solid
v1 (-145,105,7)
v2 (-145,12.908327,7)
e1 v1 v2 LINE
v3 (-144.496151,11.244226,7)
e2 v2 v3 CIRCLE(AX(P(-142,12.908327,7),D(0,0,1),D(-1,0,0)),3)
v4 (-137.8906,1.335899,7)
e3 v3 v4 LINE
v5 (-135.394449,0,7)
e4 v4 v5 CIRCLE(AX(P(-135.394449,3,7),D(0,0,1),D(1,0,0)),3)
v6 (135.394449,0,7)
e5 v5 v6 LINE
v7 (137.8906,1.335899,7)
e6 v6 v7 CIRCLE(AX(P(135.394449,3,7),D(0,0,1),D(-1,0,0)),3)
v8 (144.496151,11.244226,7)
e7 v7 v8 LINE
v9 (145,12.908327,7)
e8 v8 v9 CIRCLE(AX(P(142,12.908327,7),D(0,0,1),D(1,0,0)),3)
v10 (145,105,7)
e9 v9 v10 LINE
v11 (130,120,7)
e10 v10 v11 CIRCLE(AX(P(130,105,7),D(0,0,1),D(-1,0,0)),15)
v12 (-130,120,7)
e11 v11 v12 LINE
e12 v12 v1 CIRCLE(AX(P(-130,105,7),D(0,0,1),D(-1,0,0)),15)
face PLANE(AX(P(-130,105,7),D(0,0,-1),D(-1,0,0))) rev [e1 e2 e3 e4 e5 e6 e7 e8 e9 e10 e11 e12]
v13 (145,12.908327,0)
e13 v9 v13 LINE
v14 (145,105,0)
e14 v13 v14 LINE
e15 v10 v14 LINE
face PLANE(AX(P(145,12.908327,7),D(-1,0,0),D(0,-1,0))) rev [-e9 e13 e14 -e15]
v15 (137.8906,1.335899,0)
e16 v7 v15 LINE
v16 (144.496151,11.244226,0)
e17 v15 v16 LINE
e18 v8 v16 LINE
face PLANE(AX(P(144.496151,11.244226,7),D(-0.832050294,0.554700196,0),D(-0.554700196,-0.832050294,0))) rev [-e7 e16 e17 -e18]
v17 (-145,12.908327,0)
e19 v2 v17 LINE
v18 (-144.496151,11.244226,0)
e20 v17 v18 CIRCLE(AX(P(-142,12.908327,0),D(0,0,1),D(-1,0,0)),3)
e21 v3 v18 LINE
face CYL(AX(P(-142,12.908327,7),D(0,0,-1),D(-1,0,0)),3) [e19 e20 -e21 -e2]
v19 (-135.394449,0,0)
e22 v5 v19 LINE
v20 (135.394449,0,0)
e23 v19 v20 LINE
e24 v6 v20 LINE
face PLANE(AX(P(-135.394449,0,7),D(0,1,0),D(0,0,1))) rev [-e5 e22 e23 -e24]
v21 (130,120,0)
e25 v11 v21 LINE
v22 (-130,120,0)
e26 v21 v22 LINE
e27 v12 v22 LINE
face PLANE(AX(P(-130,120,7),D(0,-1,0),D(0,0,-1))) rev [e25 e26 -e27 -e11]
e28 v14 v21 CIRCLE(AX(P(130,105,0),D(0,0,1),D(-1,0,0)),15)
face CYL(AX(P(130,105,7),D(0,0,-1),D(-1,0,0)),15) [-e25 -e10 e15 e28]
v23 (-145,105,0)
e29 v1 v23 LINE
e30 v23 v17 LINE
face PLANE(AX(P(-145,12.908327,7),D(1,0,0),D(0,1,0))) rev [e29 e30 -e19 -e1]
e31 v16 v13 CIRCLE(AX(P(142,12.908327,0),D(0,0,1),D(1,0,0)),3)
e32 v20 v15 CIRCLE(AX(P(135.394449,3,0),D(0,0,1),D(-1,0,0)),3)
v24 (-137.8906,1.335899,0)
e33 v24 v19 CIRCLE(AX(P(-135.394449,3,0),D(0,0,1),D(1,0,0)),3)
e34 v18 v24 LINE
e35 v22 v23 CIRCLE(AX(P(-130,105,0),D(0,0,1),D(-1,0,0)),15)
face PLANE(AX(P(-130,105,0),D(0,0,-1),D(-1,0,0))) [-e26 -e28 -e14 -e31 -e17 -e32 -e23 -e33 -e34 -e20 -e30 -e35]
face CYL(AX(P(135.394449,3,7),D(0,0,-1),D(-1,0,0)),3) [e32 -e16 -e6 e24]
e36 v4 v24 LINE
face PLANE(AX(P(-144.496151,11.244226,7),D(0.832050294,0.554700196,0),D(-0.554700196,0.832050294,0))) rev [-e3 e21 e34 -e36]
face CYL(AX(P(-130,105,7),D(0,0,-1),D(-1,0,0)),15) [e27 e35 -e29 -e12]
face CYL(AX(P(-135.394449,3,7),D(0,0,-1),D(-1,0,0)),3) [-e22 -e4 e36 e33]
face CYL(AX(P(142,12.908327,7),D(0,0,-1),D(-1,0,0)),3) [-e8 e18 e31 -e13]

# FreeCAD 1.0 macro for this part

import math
import FreeCAD as App
import Part
import Sketcher
Q = App.Units.Quantity

doc = App.newDocument("Part")
body = doc.addObject("PartDesign::Body", "Body")

# Sketch on XY plane
sketch1 = body.newObject("Sketcher::SketchObject", "Sketch")
sketch1.AttachmentSupport = (doc.getObject("XY_Plane"), [""])
sketch1.MapMode = "FlatFace"
sketch1.addGeometry([
    Part.LineSegment(App.Vector(-144.5, 11.2, 0), App.Vector(-137.9, 1.3, 0)),  # 0
    Part.ArcOfCircle(Part.Circle(App.Vector(-135.4, 3, 0), App.Vector(0, 0, 1), 3), math.radians(-146), math.radians(-90)),  # 1
    Part.LineSegment(App.Vector(-135.4, 0, 0), App.Vector(135.4, 0, 0)),  # 2
    Part.ArcOfCircle(Part.Circle(App.Vector(135.4, 3, 0), App.Vector(0, 0, 1), 3), math.radians(-90), math.radians(-34)),  # 3
    Part.LineSegment(App.Vector(137.9, 1.3, 0), App.Vector(144.5, 11.2, 0)),  # 4
    Part.ArcOfCircle(Part.Circle(App.Vector(142, 12.9, 0), App.Vector(0, 0, 1), 3), math.radians(-34), math.radians(0)),  # 5
    Part.LineSegment(App.Vector(145, 12.9, 0), App.Vector(145, 105, 0)),  # 6
    Part.ArcOfCircle(Part.Circle(App.Vector(130, 105, 0), App.Vector(0, 0, 1), 15), math.radians(0), math.radians(90)),  # 7
    Part.LineSegment(App.Vector(130, 120, 0), App.Vector(-130, 120, 0)),  # 8
    Part.ArcOfCircle(Part.Circle(App.Vector(-130, 105, 0), App.Vector(0, 0, 1), 15), math.radians(90), math.radians(180)),  # 9
    Part.LineSegment(App.Vector(-145, 105, 0), App.Vector(-145, 12.9, 0)),  # 10
    Part.ArcOfCircle(Part.Circle(App.Vector(-142, 12.9, 0), App.Vector(0, 0, 1), 3), math.radians(-180), math.radians(-146)),  # 11
], False)
sketch1.addConstraint([
    Sketcher.Constraint("Tangent", 0, 2, 1, 1),
    Sketcher.Constraint("Tangent", 1, 2, 2, 1),
    Sketcher.Constraint("Tangent", 2, 2, 3, 1),
    Sketcher.Constraint("Tangent", 3, 2, 4, 1),
    Sketcher.Constraint("Tangent", 4, 2, 5, 1),
    Sketcher.Constraint("Tangent", 5, 2, 6, 1),
    Sketcher.Constraint("Tangent", 6, 2, 7, 1),
    Sketcher.Constraint("Tangent", 7, 2, 8, 1),
    Sketcher.Constraint("Tangent", 8, 2, 9, 1),
    Sketcher.Constraint("Tangent", 9, 2, 10, 1),
    Sketcher.Constraint("Tangent", 10, 2, 11, 1),
    Sketcher.Constraint("Tangent", 11, 2, 0, 1),
    Sketcher.Constraint("Horizontal", 2),
    Sketcher.Constraint("Vertical", 6),
    Sketcher.Constraint("Horizontal", 8),
    Sketcher.Constraint("Vertical", 10),
    Sketcher.Constraint("Equal", 1, 3),
    Sketcher.Constraint("Equal", 3, 5),
    Sketcher.Constraint("Equal", 7, 9),
    Sketcher.Constraint("Equal", 5, 11),
    Sketcher.Constraint("Symmetric", 1, 2, 2, 2, -1, 1),
    Sketcher.Constraint("Symmetric", 5, 3, 11, 3, -2),
    Sketcher.Constraint("Radius", 1, Q("3 mm")),
    Sketcher.Constraint("Radius", 7, Q("15 mm")),
    Sketcher.Constraint("DistanceX", 8, 2, 8, 1, Q("260 mm")),
    Sketcher.Constraint("DistanceY", -1, 1, 7, 3, Q("105 mm")),
    Sketcher.Constraint("DistanceX", 0, 2, -1, 1, Q("137.8906 mm")),
    Sketcher.Constraint("DistanceY", -1, 1, 0, 2, Q("1.335899 mm")),
])
pad1 = body.newObject("PartDesign::Pad", "Pad")
pad1.Profile = sketch1
pad1.Length = 7

doc.recompute()
